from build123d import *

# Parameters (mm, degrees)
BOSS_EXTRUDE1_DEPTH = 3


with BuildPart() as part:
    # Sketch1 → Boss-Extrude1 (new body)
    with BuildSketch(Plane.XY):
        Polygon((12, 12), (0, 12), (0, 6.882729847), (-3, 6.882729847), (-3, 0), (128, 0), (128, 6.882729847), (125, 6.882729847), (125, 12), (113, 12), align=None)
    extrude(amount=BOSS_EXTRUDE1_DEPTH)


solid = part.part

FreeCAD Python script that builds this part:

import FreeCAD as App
import Part
import Sketcher
from FreeCAD import Vector
Q = App.Units.Quantity


def add_polygon(sketch, points):
    """Adds a closed chain of lines whose ends are joined by coincident constraints."""
    first, n = sketch.GeometryCount, len(points)
    for a, b in zip(points, points[1:] + points[:1]):
        sketch.addGeometry(Part.LineSegment(App.Vector(*a, 0), App.Vector(*b, 0)), False)
    for i in range(n):
        sketch.addConstraint(Sketcher.Constraint("Coincident", first + i, 2, first + (i + 1) % n, 1))

doc = App.newDocument("Part")
body = doc.addObject("PartDesign::Body", "Body")

# Sketch on XY plane
sketch1 = doc.addObject("Sketcher::SketchObject", "Sketch")
body.addObject(sketch1)
sketch1.AttachmentSupport = (doc.XY_Plane, [""])
sketch1.MapMode = "FlatFace"
add_polygon(sketch1, [(0, 12), (0, 6.88273), (-3, 6.88273), (-3, 0), (128, 0), (128, 6.88273), (125, 6.88273), (125, 12)])  # lines 0-7
sketch1.addConstraint([
    Sketcher.Constraint("Vertical", 0),
    Sketcher.Constraint("Horizontal", 1),
    Sketcher.Constraint("Vertical", 2),
    Sketcher.Constraint("Horizontal", 3),
    Sketcher.Constraint("Vertical", 4),
    Sketcher.Constraint("Horizontal", 5),
    Sketcher.Constraint("Vertical", 6),
    Sketcher.Constraint("Horizontal", 7),
    Sketcher.Constraint("PointOnObject", 0, 2, -2),
    Sketcher.Constraint("PointOnObject", 2, 2, -1),
    Sketcher.Constraint("Horizontal", 1, 2, 4, 2),
    Sketcher.Constraint("Equal", 1, 5),
    Sketcher.Constraint("DistanceX", 1, 2, 1, 1, Q("3 mm")),
    Sketcher.Constraint("DistanceX", 3, 1, 3, 2, Q("131 mm")),
    Sketcher.Constraint("DistanceY", -1, 1, 6, 2, Q("12 mm")),
    Sketcher.Constraint("DistanceY", 0, 2, 0, 1, Q("5.11727 mm")),
])
pad1 = doc.addObject("PartDesign::Pad", "Pad")
body.addObject(pad1)
pad1.Profile = sketch1
pad1.Length = 3

doc.recompute()
